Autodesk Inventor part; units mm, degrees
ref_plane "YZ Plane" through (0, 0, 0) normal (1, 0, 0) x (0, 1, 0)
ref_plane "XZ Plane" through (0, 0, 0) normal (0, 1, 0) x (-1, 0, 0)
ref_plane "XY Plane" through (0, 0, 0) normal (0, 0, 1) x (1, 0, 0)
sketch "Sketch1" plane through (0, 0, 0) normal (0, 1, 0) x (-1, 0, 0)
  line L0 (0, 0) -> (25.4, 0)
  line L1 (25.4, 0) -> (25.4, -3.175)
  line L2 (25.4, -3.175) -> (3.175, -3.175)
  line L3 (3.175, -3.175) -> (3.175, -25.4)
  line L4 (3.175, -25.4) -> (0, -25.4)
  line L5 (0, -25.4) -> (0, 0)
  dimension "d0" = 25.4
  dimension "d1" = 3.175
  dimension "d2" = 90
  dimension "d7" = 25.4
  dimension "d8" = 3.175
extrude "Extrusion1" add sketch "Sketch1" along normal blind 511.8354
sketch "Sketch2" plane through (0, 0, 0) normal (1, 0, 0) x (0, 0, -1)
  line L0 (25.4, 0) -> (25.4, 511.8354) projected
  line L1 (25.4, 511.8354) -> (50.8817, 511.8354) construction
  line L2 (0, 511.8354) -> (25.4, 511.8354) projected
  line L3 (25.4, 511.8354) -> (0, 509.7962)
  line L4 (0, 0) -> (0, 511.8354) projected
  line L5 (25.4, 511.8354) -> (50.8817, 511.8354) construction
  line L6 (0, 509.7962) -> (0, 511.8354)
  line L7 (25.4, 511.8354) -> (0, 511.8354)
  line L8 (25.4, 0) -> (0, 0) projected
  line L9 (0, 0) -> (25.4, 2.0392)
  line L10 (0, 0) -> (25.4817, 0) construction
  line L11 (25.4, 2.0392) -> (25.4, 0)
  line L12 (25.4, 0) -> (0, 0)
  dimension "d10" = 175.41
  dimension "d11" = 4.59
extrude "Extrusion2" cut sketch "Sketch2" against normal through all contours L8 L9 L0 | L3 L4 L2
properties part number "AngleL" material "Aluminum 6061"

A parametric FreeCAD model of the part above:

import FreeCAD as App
import Part
import Sketcher
from FreeCAD import Vector
Q = App.Units.Quantity


def add_polygon(sketch, points):
    """Adds a closed chain of lines whose ends are joined by coincident constraints."""
    first, n = sketch.GeometryCount, len(points)
    for a, b in zip(points, points[1:] + points[:1]):
        sketch.addGeometry(Part.LineSegment(App.Vector(*a, 0), App.Vector(*b, 0)), False)
    for i in range(n):
        sketch.addConstraint(Sketcher.Constraint("Coincident", first + i, 2, first + (i + 1) % n, 1))

doc = App.newDocument("Part")
params = doc.addObject("Spreadsheet::Sheet", "Params")
for row, (alias, value) in enumerate([
    ("sketch1_width", "1 in"),
    ("sketch1_width2", "0.125 in"),
    ("pad1_length", "20.151 in"),
    ("sketch2_height", "1 in"),
], start=1):
    params.set(f"A{row}", alias)
    params.set(f"B{row}", "=" + value)
    params.setAlias(f"B{row}", alias)

body = doc.addObject("PartDesign::Body", "Body")

# Sketch on XZ plane
sketch1 = body.newObject("Sketcher::SketchObject", "Sketch")
sketch1.AttachmentSupport = (doc.getObject("XZ_Plane"), [""])
sketch1.MapMode = "FlatFace"
add_polygon(sketch1, [(-25.4, 0), (0, 0), (0, -25.4), (-3.2, -25.4), (-3.2, -3.2), (-25.4, -3.2)])  # lines 0-5
sketch1.addConstraint([
    Sketcher.Constraint("Horizontal", 0),
    Sketcher.Constraint("Vertical", 1),
    Sketcher.Constraint("Horizontal", 2),
    Sketcher.Constraint("Vertical", 3),
    Sketcher.Constraint("Horizontal", 4),
    Sketcher.Constraint("Vertical", 5),
    Sketcher.Constraint("Coincident", 0, 2, -1, 1),
    Sketcher.Constraint("Equal", 0, 1),
    Sketcher.Constraint("Equal", 4, 3),
    Sketcher.Constraint("DistanceX", 0, 1, 0, 2, Q("1 in")),
    Sketcher.Constraint("DistanceX", 2, 2, 2, 1, Q("0.125 in")),
])
sketch1.setExpression("Constraints[15]", "Params.sketch1_width")
sketch1.setExpression("Constraints[16]", "Params.sketch1_width2")
pad1 = body.newObject("PartDesign::Pad", "Pad")
pad1.Profile = sketch1
pad1.setExpression("Length", "Params.pad1_length")
pad1.Reversed = True

# Sketch on YZ plane
sketch2 = body.newObject("Sketcher::SketchObject", "Sketch001")
sketch2.AttachmentSupport = (doc.getObject("YZ_Plane"), [""])
sketch2.MapMode = "FlatFace"
add_polygon(sketch2, [(0, 0), (0, -25.4), (2, -25.4)])  # lines 0-2
add_polygon(sketch2, [(509.8, 0), (511.8, -25.4), (511.8, 0)])  # lines 3-5
sketch2.addConstraint([
    Sketcher.Constraint("Vertical", 0),
    Sketcher.Constraint("Horizontal", 1),
    Sketcher.Constraint("Vertical", 4),
    Sketcher.Constraint("Horizontal", 5),
    Sketcher.Constraint("Coincident", 2, 2, -1, 1),
    Sketcher.Constraint("PointOnObject", 4, 2, -1),
    Sketcher.Constraint("Parallel", 2, 3),
    Sketcher.Constraint("Horizontal", 1, 2, 3, 2),
    Sketcher.Constraint("DistanceY", 0, 2, 0, 1, Q("1 in")),
    Sketcher.Constraint("Angle", 2, Q("94.59 deg")),
    Sketcher.Constraint("DistanceX", -1, 1, 3, 2, Q("20.151 in")),
])
sketch2.setExpression("Constraints[14]", "Params.sketch2_height")
pocket1 = body.newObject("PartDesign::Pocket", "Pocket")
pocket1.Profile = sketch2
pocket1.Type = "ThroughAll"

doc.recompute()
